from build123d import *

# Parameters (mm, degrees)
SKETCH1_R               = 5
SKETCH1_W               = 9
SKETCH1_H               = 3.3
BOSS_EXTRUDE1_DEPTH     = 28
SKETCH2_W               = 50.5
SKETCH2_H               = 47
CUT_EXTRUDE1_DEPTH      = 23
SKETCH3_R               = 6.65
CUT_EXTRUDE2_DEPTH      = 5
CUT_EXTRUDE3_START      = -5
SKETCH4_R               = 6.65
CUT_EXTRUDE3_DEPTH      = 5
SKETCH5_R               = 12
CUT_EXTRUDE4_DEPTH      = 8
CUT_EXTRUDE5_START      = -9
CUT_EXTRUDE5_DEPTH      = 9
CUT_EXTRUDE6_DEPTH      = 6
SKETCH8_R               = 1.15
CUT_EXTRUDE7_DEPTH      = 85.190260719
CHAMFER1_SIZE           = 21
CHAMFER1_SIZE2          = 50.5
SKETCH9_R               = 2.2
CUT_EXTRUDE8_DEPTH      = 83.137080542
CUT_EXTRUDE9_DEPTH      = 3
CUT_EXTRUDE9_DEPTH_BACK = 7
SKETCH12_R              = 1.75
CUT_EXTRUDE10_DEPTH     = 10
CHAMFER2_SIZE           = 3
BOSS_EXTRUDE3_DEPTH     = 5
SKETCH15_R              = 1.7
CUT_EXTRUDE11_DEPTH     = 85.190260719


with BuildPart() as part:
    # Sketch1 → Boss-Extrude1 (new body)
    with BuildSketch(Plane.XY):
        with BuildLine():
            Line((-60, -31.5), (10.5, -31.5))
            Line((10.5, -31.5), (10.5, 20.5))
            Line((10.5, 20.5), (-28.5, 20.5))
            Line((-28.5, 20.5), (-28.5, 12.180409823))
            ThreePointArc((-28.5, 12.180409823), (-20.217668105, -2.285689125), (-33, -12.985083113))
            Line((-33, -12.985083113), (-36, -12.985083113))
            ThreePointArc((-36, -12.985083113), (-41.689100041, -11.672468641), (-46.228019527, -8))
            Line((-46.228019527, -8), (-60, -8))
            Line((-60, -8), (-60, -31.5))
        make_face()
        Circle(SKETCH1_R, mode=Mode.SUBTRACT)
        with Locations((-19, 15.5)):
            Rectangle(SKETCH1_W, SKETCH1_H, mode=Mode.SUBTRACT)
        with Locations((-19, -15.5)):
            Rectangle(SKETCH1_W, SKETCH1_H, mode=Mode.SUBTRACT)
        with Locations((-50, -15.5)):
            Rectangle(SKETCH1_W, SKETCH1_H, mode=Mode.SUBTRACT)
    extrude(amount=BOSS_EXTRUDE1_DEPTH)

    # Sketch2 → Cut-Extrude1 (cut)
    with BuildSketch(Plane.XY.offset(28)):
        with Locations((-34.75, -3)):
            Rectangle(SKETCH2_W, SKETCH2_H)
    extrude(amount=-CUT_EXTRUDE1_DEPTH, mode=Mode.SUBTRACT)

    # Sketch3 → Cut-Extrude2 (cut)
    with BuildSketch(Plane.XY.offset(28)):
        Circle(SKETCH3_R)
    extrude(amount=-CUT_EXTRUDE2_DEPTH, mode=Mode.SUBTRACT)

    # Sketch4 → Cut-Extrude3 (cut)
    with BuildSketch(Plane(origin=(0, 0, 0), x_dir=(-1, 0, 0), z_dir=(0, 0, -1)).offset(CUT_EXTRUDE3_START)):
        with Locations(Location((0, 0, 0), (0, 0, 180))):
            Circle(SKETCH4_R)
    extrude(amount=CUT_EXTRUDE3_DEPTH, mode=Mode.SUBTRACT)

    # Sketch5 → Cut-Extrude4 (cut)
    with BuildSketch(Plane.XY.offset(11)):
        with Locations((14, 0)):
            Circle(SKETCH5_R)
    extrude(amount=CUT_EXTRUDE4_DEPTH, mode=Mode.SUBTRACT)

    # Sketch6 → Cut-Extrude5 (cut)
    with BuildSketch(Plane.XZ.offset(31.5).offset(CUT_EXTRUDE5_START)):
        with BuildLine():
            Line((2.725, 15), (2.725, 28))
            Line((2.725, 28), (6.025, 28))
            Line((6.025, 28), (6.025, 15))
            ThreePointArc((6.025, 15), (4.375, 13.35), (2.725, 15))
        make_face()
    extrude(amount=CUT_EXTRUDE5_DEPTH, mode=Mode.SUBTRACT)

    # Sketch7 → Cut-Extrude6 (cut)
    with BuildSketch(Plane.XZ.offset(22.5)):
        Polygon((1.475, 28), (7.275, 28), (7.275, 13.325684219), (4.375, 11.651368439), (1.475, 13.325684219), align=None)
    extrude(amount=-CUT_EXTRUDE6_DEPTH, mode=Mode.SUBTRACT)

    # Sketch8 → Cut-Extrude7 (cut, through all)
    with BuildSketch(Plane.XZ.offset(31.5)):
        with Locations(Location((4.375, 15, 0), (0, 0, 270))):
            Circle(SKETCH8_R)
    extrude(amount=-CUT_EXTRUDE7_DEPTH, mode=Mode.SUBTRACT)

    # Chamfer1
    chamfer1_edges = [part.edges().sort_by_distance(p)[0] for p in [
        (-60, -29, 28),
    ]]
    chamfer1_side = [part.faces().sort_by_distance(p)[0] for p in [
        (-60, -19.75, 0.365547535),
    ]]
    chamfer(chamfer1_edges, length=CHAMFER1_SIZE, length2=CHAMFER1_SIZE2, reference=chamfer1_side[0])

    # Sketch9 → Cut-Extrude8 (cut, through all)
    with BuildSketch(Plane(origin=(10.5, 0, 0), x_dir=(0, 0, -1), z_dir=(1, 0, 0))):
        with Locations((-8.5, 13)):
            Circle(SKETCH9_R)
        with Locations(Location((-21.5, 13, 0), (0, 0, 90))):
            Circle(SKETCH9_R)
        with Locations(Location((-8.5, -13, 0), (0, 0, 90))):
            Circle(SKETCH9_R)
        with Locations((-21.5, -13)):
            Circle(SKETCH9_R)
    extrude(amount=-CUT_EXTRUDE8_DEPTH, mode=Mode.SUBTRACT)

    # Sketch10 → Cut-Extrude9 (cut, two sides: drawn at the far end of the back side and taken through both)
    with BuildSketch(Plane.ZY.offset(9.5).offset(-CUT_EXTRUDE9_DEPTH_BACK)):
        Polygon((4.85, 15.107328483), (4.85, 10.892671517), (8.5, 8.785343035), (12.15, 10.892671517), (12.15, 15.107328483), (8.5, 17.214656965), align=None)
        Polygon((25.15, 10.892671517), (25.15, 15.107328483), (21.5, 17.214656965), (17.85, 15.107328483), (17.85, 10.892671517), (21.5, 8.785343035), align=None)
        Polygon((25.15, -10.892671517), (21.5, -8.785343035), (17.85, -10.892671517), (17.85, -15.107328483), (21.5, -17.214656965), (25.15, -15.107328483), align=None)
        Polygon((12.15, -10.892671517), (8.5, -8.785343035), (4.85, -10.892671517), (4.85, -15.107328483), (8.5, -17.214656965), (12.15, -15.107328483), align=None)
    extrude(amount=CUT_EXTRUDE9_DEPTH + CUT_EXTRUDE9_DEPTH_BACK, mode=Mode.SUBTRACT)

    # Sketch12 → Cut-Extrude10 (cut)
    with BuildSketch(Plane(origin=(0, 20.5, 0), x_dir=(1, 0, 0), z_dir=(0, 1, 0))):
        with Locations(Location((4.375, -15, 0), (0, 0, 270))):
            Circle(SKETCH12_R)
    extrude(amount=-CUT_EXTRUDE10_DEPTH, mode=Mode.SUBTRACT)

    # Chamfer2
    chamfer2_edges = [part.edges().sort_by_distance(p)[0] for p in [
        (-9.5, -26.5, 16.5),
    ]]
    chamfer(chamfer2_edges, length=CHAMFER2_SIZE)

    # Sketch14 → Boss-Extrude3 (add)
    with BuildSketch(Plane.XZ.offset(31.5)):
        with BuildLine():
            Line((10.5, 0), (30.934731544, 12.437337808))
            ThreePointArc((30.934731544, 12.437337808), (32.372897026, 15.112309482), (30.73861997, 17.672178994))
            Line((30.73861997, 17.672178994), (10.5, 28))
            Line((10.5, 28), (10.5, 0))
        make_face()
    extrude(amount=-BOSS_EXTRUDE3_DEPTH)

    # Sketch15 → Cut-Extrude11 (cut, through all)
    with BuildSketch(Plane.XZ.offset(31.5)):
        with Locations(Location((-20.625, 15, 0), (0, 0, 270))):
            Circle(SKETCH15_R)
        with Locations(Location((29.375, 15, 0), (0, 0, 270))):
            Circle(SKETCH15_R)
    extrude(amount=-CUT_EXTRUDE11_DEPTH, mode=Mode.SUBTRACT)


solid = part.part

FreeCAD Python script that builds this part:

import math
import FreeCAD as App
import Part
import Sketcher
from FreeCAD import Vector
Q = App.Units.Quantity


def edges_at(feature, points):
    """Names of the edges that pass closest to the given points."""
    edges = feature.Shape.Edges
    near = lambda p: min(range(len(edges)), key=lambda i: edges[i].distToShape(Part.Vertex(*p))[0])
    return sorted({f"Edge{near(p) + 1}" for p in points})

doc = App.newDocument("Part")
body = doc.addObject("PartDesign::Body", "Body")

# Sketch on XY plane
sketch1 = doc.addObject("Sketcher::SketchObject", "Sketch")
body.addObject(sketch1)
sketch1.AttachmentSupport = (doc.XY_Plane, [""])
sketch1.MapMode = "FlatFace"
sketch1.addGeometry([
    Part.LineSegment(Vector(-60, -31.5, 0), Vector(10.5, -31.5, 0)),  # 0
    Part.LineSegment(Vector(10.5, -31.5, 0), Vector(10.5, 20.5, 0)),  # 1
    Part.LineSegment(Vector(10.5, 20.5, 0), Vector(-28.5, 20.5, 0)),  # 2
    Part.LineSegment(Vector(-28.5, 20.5, 0), Vector(-28.5, 12.18041, 0)),  # 3
    Part.ArcOfCircle(Part.Circle(Vector(-33, 0, 0), Vector(0, 0, 1), 12.985083), math.radians(-90), math.radians(69.723466)),  # 4
    Part.LineSegment(Vector(-33, -12.985083, 0), Vector(-36, -12.985083, 0)),  # 5
    Part.ArcOfCircle(Part.Circle(Vector(-36, 0, 0), Vector(0, 0, 1), 12.985083), math.radians(-141.968723), math.radians(-90)),  # 6
    Part.LineSegment(Vector(-46.22802, -8, 0), Vector(-60, -8, 0)),  # 7
    Part.LineSegment(Vector(-60, -8, 0), Vector(-60, -31.5, 0)),  # 8
    Part.LineSegment(Vector(-45.5, -17.15, 0), Vector(-54.5, -17.15, 0)),  # 9
    Part.LineSegment(Vector(-54.5, -17.15, 0), Vector(-54.5, -13.85, 0)),  # 10
    Part.LineSegment(Vector(-54.5, -13.85, 0), Vector(-45.5, -13.85, 0)),  # 11
    Part.LineSegment(Vector(-45.5, -13.85, 0), Vector(-45.5, -17.15, 0)),  # 12
    Part.LineSegment(Vector(-14.5, -17.15, 0), Vector(-23.5, -17.15, 0)),  # 13
    Part.LineSegment(Vector(-23.5, -17.15, 0), Vector(-23.5, -13.85, 0)),  # 14
    Part.LineSegment(Vector(-23.5, -13.85, 0), Vector(-14.5, -13.85, 0)),  # 15
    Part.LineSegment(Vector(-14.5, -13.85, 0), Vector(-14.5, -17.15, 0)),  # 16
    Part.Circle(Vector(0, 0, 0), Vector(0, 0, 1), 5),  # 17
    Part.LineSegment(Vector(-14.5, 13.85, 0), Vector(-23.5, 13.85, 0)),  # 18
    Part.LineSegment(Vector(-23.5, 13.85, 0), Vector(-23.5, 17.15, 0)),  # 19
    Part.LineSegment(Vector(-23.5, 17.15, 0), Vector(-14.5, 17.15, 0)),  # 20
    Part.LineSegment(Vector(-14.5, 17.15, 0), Vector(-14.5, 13.85, 0)),  # 21
], False)
sketch1.addConstraint([
    Sketcher.Constraint("Coincident", 0, 2, 1, 1),
    Sketcher.Constraint("Coincident", 1, 2, 2, 1),
    Sketcher.Constraint("Coincident", 2, 2, 3, 1),
    Sketcher.Constraint("Coincident", 3, 2, 4, 2),
    Sketcher.Constraint("Tangent", 4, 1, 5, 1),
    Sketcher.Constraint("Tangent", 5, 2, 6, 2),
    Sketcher.Constraint("Coincident", 6, 1, 7, 1),
    Sketcher.Constraint("Coincident", 7, 2, 8, 1),
    Sketcher.Constraint("Coincident", 8, 2, 0, 1),
    Sketcher.Constraint("Coincident", 9, 2, 10, 1),
    Sketcher.Constraint("Coincident", 10, 2, 11, 1),
    Sketcher.Constraint("Coincident", 11, 2, 12, 1),
    Sketcher.Constraint("Coincident", 12, 2, 9, 1),
    Sketcher.Constraint("Coincident", 13, 2, 14, 1),
    Sketcher.Constraint("Coincident", 14, 2, 15, 1),
    Sketcher.Constraint("Coincident", 15, 2, 16, 1),
    Sketcher.Constraint("Coincident", 16, 2, 13, 1),
    Sketcher.Constraint("Coincident", 18, 2, 19, 1),
    Sketcher.Constraint("Coincident", 19, 2, 20, 1),
    Sketcher.Constraint("Coincident", 20, 2, 21, 1),
    Sketcher.Constraint("Coincident", 21, 2, 18, 1),
    Sketcher.Constraint("Horizontal", 0),
    Sketcher.Constraint("Vertical", 1),
    Sketcher.Constraint("Horizontal", 2),
    Sketcher.Constraint("Vertical", 3),
    Sketcher.Constraint("Horizontal", 5),
    Sketcher.Constraint("Horizontal", 7),
    Sketcher.Constraint("Vertical", 8),
    Sketcher.Constraint("Horizontal", 9),
    Sketcher.Constraint("Vertical", 10),
    Sketcher.Constraint("Horizontal", 11),
    Sketcher.Constraint("Vertical", 12),
    Sketcher.Constraint("Horizontal", 13),
    Sketcher.Constraint("Vertical", 14),
    Sketcher.Constraint("Horizontal", 15),
    Sketcher.Constraint("Vertical", 16),
    Sketcher.Constraint("Horizontal", 18),
    Sketcher.Constraint("Vertical", 19),
    Sketcher.Constraint("Horizontal", 20),
    Sketcher.Constraint("Vertical", 21),
    Sketcher.Constraint("Coincident", 17, 3, -1, 1),
    Sketcher.Constraint("Equal", 4, 6),
    Sketcher.Constraint("Symmetric", 14, 2, 18, 2, -1),
    Sketcher.Constraint("Symmetric", 16, 2, 20, 2, -1),
    Sketcher.Constraint("PointOnObject", 4, 3, -1),
    Sketcher.Constraint("Horizontal", 12, 2, 13, 2),
    Sketcher.Constraint("Horizontal", 11, 2, 14, 2),
    Sketcher.Constraint("Equal", 11, 13),
    Sketcher.Constraint("Diameter", 17, Q("10 mm")),
    Sketcher.Constraint("DistanceX", 2, 2, 2, 1, Q("39 mm")),
    Sketcher.Constraint("DistanceX", 5, 2, 5, 1, Q("3 mm")),
    Sketcher.Constraint("DistanceX", 9, 2, 9, 1, Q("9 mm")),
    Sketcher.Constraint("DistanceY", 1, 1, 1, 2, Q("52 mm")),
    Sketcher.Constraint("DistanceX", 0, 1, 0, 2, Q("70.5 mm")),
    Sketcher.Constraint("DistanceY", 8, 2, 8, 1, Q("23.5 mm")),
    Sketcher.Constraint("DistanceY", 10, 1, 10, 2, Q("3.3 mm")),
    Sketcher.Constraint("DistanceX", 4, 3, -1, 1, Q("33 mm")),
    Sketcher.Constraint("DistanceY", 6, 1, -1, 1, Q("8 mm")),
    Sketcher.Constraint("DistanceX", 7, 2, -1, 1, Q("60 mm")),
    Sketcher.Constraint("DistanceX", 12, 2, 13, 2, Q("22 mm")),
    Sketcher.Constraint("DistanceX", 3, 2, 18, 2, Q("5 mm")),
    Sketcher.Constraint("DistanceY", 9, 2, -1, 1, Q("17.15 mm")),
    Sketcher.Constraint("Radius", 4, Q("12.985083 mm")),
])
pad1 = doc.addObject("PartDesign::Pad", "Pad")
body.addObject(pad1)
pad1.Profile = sketch1
pad1.Length = 28

# Sketch on XY plane
sketch2 = doc.addObject("Sketcher::SketchObject", "Sketch001")
body.addObject(sketch2)
sketch2.AttachmentSupport = (doc.XY_Plane, [""])
sketch2.MapMode = "FlatFace"
sketch2.AttachmentOffset = App.Placement(Vector(0, 0, 28), App.Rotation())
sketch2.addGeometry([
    Part.LineSegment(Vector(-60, 20.5, 0), Vector(-60, -26.5, 0)),
    Part.LineSegment(Vector(-60, -26.5, 0), Vector(-9.5, -26.5, 0)),
    Part.LineSegment(Vector(-9.5, -26.5, 0), Vector(-9.5, 20.5, 0)),
    Part.LineSegment(Vector(-9.5, 20.5, 0), Vector(-60, 20.5, 0)),
], False)
sketch2.addConstraint([
    Sketcher.Constraint("Coincident", 0, 2, 1, 1),
    Sketcher.Constraint("Coincident", 1, 2, 2, 1),
    Sketcher.Constraint("Coincident", 2, 2, 3, 1),
    Sketcher.Constraint("Coincident", 3, 2, 0, 1),
    Sketcher.Constraint("Vertical", 0),
    Sketcher.Constraint("Horizontal", 1),
    Sketcher.Constraint("Vertical", 2),
    Sketcher.Constraint("Horizontal", 3),
    Sketcher.Constraint("DistanceY", 0, 2, 0, 1, Q("47 mm")),
    Sketcher.Constraint("DistanceX", 1, 1, 1, 2, Q("50.5 mm")),
    Sketcher.Constraint("DistanceX", 0, 2, -1, 1, Q("60 mm")),
    Sketcher.Constraint("DistanceY", 0, 2, -1, 1, Q("26.5 mm")),
])
pocket1 = doc.addObject("PartDesign::Pocket", "Pocket")
body.addObject(pocket1)
pocket1.Profile = sketch2
pocket1.Length = 23

# Sketch on XY plane
sketch3 = doc.addObject("Sketcher::SketchObject", "Sketch002")
body.addObject(sketch3)
sketch3.AttachmentSupport = (doc.XY_Plane, [""])
sketch3.MapMode = "FlatFace"
sketch3.AttachmentOffset = App.Placement(Vector(0, 0, 28), App.Rotation())
sketch3.addGeometry(Part.Circle(Vector(0, 0, 0), Vector(0, 0, 1), 6.65), False)
sketch3.addConstraint([
    Sketcher.Constraint("Coincident", 0, 3, -1, 1),
    Sketcher.Constraint("Diameter", 0, Q("13.3 mm")),
])
pocket2 = doc.addObject("PartDesign::Pocket", "Pocket001")
body.addObject(pocket2)
pocket2.Profile = sketch3
pocket2.Length = 5

# Sketch on XY plane
sketch4 = doc.addObject("Sketcher::SketchObject", "Sketch003")
body.addObject(sketch4)
sketch4.AttachmentSupport = (doc.XY_Plane, [""])
sketch4.MapMode = "FlatFace"
sketch4.AttachmentOffset = App.Placement(Vector(0, 0, 5), App.Rotation())
sketch4.addGeometry(Part.Circle(Vector(0, 0, 0), Vector(0, 0, 1), 6.65), False)
sketch4.addConstraint([
    Sketcher.Constraint("Coincident", 0, 3, -1, 1),
    Sketcher.Constraint("Diameter", 0, Q("13.3 mm")),
])
pocket3 = doc.addObject("PartDesign::Pocket", "Pocket002")
body.addObject(pocket3)
pocket3.Profile = sketch4
pocket3.Length = 5

# Sketch on XY plane
sketch5 = doc.addObject("Sketcher::SketchObject", "Sketch004")
body.addObject(sketch5)
sketch5.AttachmentSupport = (doc.XY_Plane, [""])
sketch5.MapMode = "FlatFace"
sketch5.AttachmentOffset = App.Placement(Vector(0, 0, 11), App.Rotation())
sketch5.addGeometry(Part.Circle(Vector(14, 0, 0), Vector(0, 0, 1), 12), False)
sketch5.addConstraint([
    Sketcher.Constraint("PointOnObject", 0, 3, -1),
    Sketcher.Constraint("Diameter", 0, Q("24 mm")),
    Sketcher.Constraint("DistanceX", -1, 1, 0, 3, Q("14 mm")),
])
pocket4 = doc.addObject("PartDesign::Pocket", "Pocket003")
body.addObject(pocket4)
pocket4.Profile = sketch5
pocket4.Length = 8
pocket4.Reversed = True

# Sketch on XZ plane
sketch6 = doc.addObject("Sketcher::SketchObject", "Sketch005")
body.addObject(sketch6)
sketch6.AttachmentSupport = (doc.XZ_Plane, [""])
sketch6.MapMode = "FlatFace"
sketch6.AttachmentOffset = App.Placement(Vector(0, 0, 22.5), App.Rotation())
sketch6.addGeometry([
    Part.LineSegment(Vector(2.725, 28, 0), Vector(2.725, 15, 0)),
    Part.ArcOfCircle(Part.Circle(Vector(4.375, 15, 0), Vector(0, 0, 1), 1.65), math.radians(180), math.radians(360)),
    Part.LineSegment(Vector(6.025, 15, 0), Vector(6.025, 28, 0)),
    Part.LineSegment(Vector(6.025, 28, 0), Vector(2.725, 28, 0)),
], False)
sketch6.addConstraint([
    Sketcher.Constraint("Tangent", 0, 2, 1, 1),
    Sketcher.Constraint("Tangent", 1, 2, 2, 1),
    Sketcher.Constraint("Coincident", 2, 2, 3, 1),
    Sketcher.Constraint("Coincident", 3, 2, 0, 1),
    Sketcher.Constraint("Vertical", 0),
    Sketcher.Constraint("Vertical", 2),
    Sketcher.Constraint("Horizontal", 3),
    Sketcher.Constraint("DistanceY", 0, 2, 0, 1, Q("13 mm")),
    Sketcher.Constraint("Radius", 1, Q("1.65 mm")),
    Sketcher.Constraint("DistanceY", -1, 1, 1, 3, Q("15 mm")),
    Sketcher.Constraint("DistanceX", -1, 1, 1, 3, Q("4.375 mm")),
])
pocket5 = doc.addObject("PartDesign::Pocket", "Pocket004")
body.addObject(pocket5)
pocket5.Profile = sketch6
pocket5.Length = 9
pocket5.Reversed = True

# Sketch on XZ plane
sketch7 = doc.addObject("Sketcher::SketchObject", "Sketch006")
body.addObject(sketch7)
sketch7.AttachmentSupport = (doc.XZ_Plane, [""])
sketch7.MapMode = "FlatFace"
sketch7.AttachmentOffset = App.Placement(Vector(0, 0, 22.5), App.Rotation())
sketch7.addGeometry([
    Part.LineSegment(Vector(7.275, 28, 0), Vector(1.475, 28, 0)),  # 0
    Part.LineSegment(Vector(1.475, 28, 0), Vector(1.475, 13.325684, 0)),  # 1
    Part.LineSegment(Vector(1.475, 13.325684, 0), Vector(4.375, 11.651368, 0)),  # 2
    Part.LineSegment(Vector(4.375, 11.651368, 0), Vector(7.275, 13.325684, 0)),  # 3
    Part.LineSegment(Vector(7.275, 13.325684, 0), Vector(7.275, 28, 0)),  # 4
], False)
sketch7.addConstraint([
    Sketcher.Constraint("Coincident", 0, 2, 1, 1),
    Sketcher.Constraint("Coincident", 1, 2, 2, 1),
    Sketcher.Constraint("Coincident", 2, 2, 3, 1),
    Sketcher.Constraint("Coincident", 3, 2, 4, 1),
    Sketcher.Constraint("Coincident", 4, 2, 0, 1),
    Sketcher.Constraint("Horizontal", 0),
    Sketcher.Constraint("Vertical", 1),
    Sketcher.Constraint("Vertical", 4),
    Sketcher.Constraint("Horizontal", 1, 2, 3, 2),
    Sketcher.Constraint("Equal", 2, 3),
    Sketcher.Constraint("Angle", 2, Q("-30 deg")),
    Sketcher.Constraint("DistanceX", 0, 2, 0, 1, Q("5.8 mm")),
    Sketcher.Constraint("DistanceY", -1, 1, 0, 2, Q("28 mm")),
    Sketcher.Constraint("DistanceX", -1, 1, 0, 2, Q("1.475 mm")),
    Sketcher.Constraint("DistanceY", 1, 2, 1, 1, Q("14.674316 mm")),
])
pocket6 = doc.addObject("PartDesign::Pocket", "Pocket005")
body.addObject(pocket6)
pocket6.Profile = sketch7
pocket6.Length = 6

# Sketch on XZ plane
sketch8 = doc.addObject("Sketcher::SketchObject", "Sketch007")
body.addObject(sketch8)
sketch8.AttachmentSupport = (doc.XZ_Plane, [""])
sketch8.MapMode = "FlatFace"
sketch8.AttachmentOffset = App.Placement(Vector(0, 0, 31.5), App.Rotation())
sketch8.addGeometry(Part.Circle(Vector(4.375, 15, 0), Vector(0, 0, 1), 1.15), False)
sketch8.addConstraint([
    Sketcher.Constraint("Diameter", 0, Q("2.3 mm")),
    Sketcher.Constraint("DistanceY", -1, 1, 0, 3, Q("15 mm")),
    Sketcher.Constraint("DistanceX", -1, 1, 0, 3, Q("4.375 mm")),
])
pocket7 = doc.addObject("PartDesign::Pocket", "Pocket006")
body.addObject(pocket7)
pocket7.Profile = sketch8
pocket7.Type = "ThroughAll"
doc.recompute()

chamfer = doc.addObject("PartDesign::Chamfer", "Chamfer")
body.addObject(chamfer)
chamfer.Base = (pocket7, edges_at(pocket7, [(-60, -29, 28)]))
chamfer.ChamferType = "Two distances"
chamfer.Size = 21
chamfer.Size2 = 50.5
chamfer.FlipDirection = True

# Sketch on YZ plane
sketch9 = doc.addObject("Sketcher::SketchObject", "Sketch008")
body.addObject(sketch9)
sketch9.AttachmentSupport = (doc.YZ_Plane, [""])
sketch9.MapMode = "FlatFace"
sketch9.AttachmentOffset = App.Placement(Vector(0, 0, 10.5), App.Rotation())
sketch9.addGeometry([
    Part.Circle(Vector(13, 8.5, 0), Vector(0, 0, 1), 2.2),
    Part.Circle(Vector(13, 21.5, 0), Vector(0, 0, 1), 2.2),
    Part.Circle(Vector(-13, 8.5, 0), Vector(0, 0, 1), 2.2),
    Part.Circle(Vector(-13, 21.5, 0), Vector(0, 0, 1), 2.2),
], False)
sketch9.addConstraint([
    Sketcher.Constraint("Equal", 0, 1),
    Sketcher.Constraint("Equal", 1, 2),
    Sketcher.Constraint("Equal", 2, 3),
    Sketcher.Constraint("Symmetric", 0, 3, 2, 3, -2),
    Sketcher.Constraint("Symmetric", 1, 3, 3, 3, -2),
    Sketcher.Constraint("Vertical", 0, 3, 1, 3),
    Sketcher.Constraint("Diameter", 0, Q("4.4 mm")),
    Sketcher.Constraint("DistanceX", -1, 1, 0, 3, Q("13 mm")),
    Sketcher.Constraint("DistanceY", 0, 3, 1, 3, Q("13 mm")),
    Sketcher.Constraint("DistanceY", -1, 1, 0, 3, Q("8.5 mm")),
])
pocket8 = doc.addObject("PartDesign::Pocket", "Pocket007")
body.addObject(pocket8)
pocket8.Profile = sketch9
pocket8.Type = "ThroughAll"

# Sketch on YZ plane
sketch10 = doc.addObject("Sketcher::SketchObject", "Sketch009")
body.addObject(sketch10)
sketch10.AttachmentSupport = (doc.YZ_Plane, [""])
sketch10.MapMode = "FlatFace"
sketch10.AttachmentOffset = App.Placement(Vector(0, 0, -9.5), App.Rotation())
sketch10.addGeometry([
    Part.LineSegment(Vector(15.107328, 4.85, 0), Vector(10.892672, 4.85, 0)),  # 0
    Part.LineSegment(Vector(10.892672, 4.85, 0), Vector(8.785343, 8.5, 0)),  # 1
    Part.LineSegment(Vector(8.785343, 8.5, 0), Vector(10.892672, 12.15, 0)),  # 2
    Part.LineSegment(Vector(10.892672, 12.15, 0), Vector(15.107328, 12.15, 0)),  # 3
    Part.LineSegment(Vector(15.107328, 12.15, 0), Vector(17.214657, 8.5, 0)),  # 4
    Part.LineSegment(Vector(17.214657, 8.5, 0), Vector(15.107328, 4.85, 0)),  # 5
    Part.LineSegment(Vector(10.892672, 25.15, 0), Vector(15.107328, 25.15, 0)),  # 6
    Part.LineSegment(Vector(15.107328, 25.15, 0), Vector(17.214657, 21.5, 0)),  # 7
    Part.LineSegment(Vector(17.214657, 21.5, 0), Vector(15.107328, 17.85, 0)),  # 8
    Part.LineSegment(Vector(15.107328, 17.85, 0), Vector(10.892672, 17.85, 0)),  # 9
    Part.LineSegment(Vector(10.892672, 17.85, 0), Vector(8.785343, 21.5, 0)),  # 10
    Part.LineSegment(Vector(8.785343, 21.5, 0), Vector(10.892672, 25.15, 0)),  # 11
    Part.LineSegment(Vector(-10.892672, 25.15, 0), Vector(-8.785343, 21.5, 0)),  # 12
    Part.LineSegment(Vector(-8.785343, 21.5, 0), Vector(-10.892672, 17.85, 0)),  # 13
    Part.LineSegment(Vector(-10.892672, 17.85, 0), Vector(-15.107328, 17.85, 0)),  # 14
    Part.LineSegment(Vector(-15.107328, 17.85, 0), Vector(-17.214657, 21.5, 0)),  # 15
    Part.LineSegment(Vector(-17.214657, 21.5, 0), Vector(-15.107328, 25.15, 0)),  # 16
    Part.LineSegment(Vector(-15.107328, 25.15, 0), Vector(-10.892672, 25.15, 0)),  # 17
    Part.LineSegment(Vector(-10.892672, 12.15, 0), Vector(-8.785343, 8.5, 0)),  # 18
    Part.LineSegment(Vector(-8.785343, 8.5, 0), Vector(-10.892672, 4.85, 0)),  # 19
    Part.LineSegment(Vector(-10.892672, 4.85, 0), Vector(-15.107328, 4.85, 0)),  # 20
    Part.LineSegment(Vector(-15.107328, 4.85, 0), Vector(-17.214657, 8.5, 0)),  # 21
    Part.LineSegment(Vector(-17.214657, 8.5, 0), Vector(-15.107328, 12.15, 0)),  # 22
    Part.LineSegment(Vector(-15.107328, 12.15, 0), Vector(-10.892672, 12.15, 0)),  # 23
], False)
sketch10.addConstraint([
    Sketcher.Constraint("Coincident", 0, 2, 1, 1),
    Sketcher.Constraint("Coincident", 1, 2, 2, 1),
    Sketcher.Constraint("Coincident", 2, 2, 3, 1),
    Sketcher.Constraint("Coincident", 3, 2, 4, 1),
    Sketcher.Constraint("Coincident", 4, 2, 5, 1),
    Sketcher.Constraint("Coincident", 5, 2, 0, 1),
    Sketcher.Constraint("Coincident", 6, 2, 7, 1),
    Sketcher.Constraint("Coincident", 7, 2, 8, 1),
    Sketcher.Constraint("Coincident", 8, 2, 9, 1),
    Sketcher.Constraint("Coincident", 9, 2, 10, 1),
    Sketcher.Constraint("Coincident", 10, 2, 11, 1),
    Sketcher.Constraint("Coincident", 11, 2, 6, 1),
    Sketcher.Constraint("Coincident", 12, 2, 13, 1),
    Sketcher.Constraint("Coincident", 13, 2, 14, 1),
    Sketcher.Constraint("Coincident", 14, 2, 15, 1),
    Sketcher.Constraint("Coincident", 15, 2, 16, 1),
    Sketcher.Constraint("Coincident", 16, 2, 17, 1),
    Sketcher.Constraint("Coincident", 17, 2, 12, 1),
    Sketcher.Constraint("Coincident", 18, 2, 19, 1),
    Sketcher.Constraint("Coincident", 19, 2, 20, 1),
    Sketcher.Constraint("Coincident", 20, 2, 21, 1),
    Sketcher.Constraint("Coincident", 21, 2, 22, 1),
    Sketcher.Constraint("Coincident", 22, 2, 23, 1),
    Sketcher.Constraint("Coincident", 23, 2, 18, 1),
    Sketcher.Constraint("Horizontal", 0),
    Sketcher.Constraint("Horizontal", 3),
    Sketcher.Constraint("Horizontal", 6),
    Sketcher.Constraint("Horizontal", 9),
    Sketcher.Constraint("Horizontal", 14),
    Sketcher.Constraint("Horizontal", 17),
    Sketcher.Constraint("Horizontal", 20),
    Sketcher.Constraint("Horizontal", 23),
    Sketcher.Constraint("Symmetric", 10, 2, 12, 2, -2),
    Sketcher.Constraint("Symmetric", 9, 2, 13, 2, -2),
    Sketcher.Constraint("Symmetric", 7, 2, 15, 2, -2),
    Sketcher.Constraint("Symmetric", 6, 2, 16, 2, -2),
    Sketcher.Constraint("Symmetric", 1, 2, 18, 2, -2),
    Sketcher.Constraint("Symmetric", 0, 2, 19, 2, -2),
    Sketcher.Constraint("Symmetric", 4, 2, 21, 2, -2),
    Sketcher.Constraint("Symmetric", 3, 2, 22, 2, -2),
    Sketcher.Constraint("Parallel", 1, 4),
    Sketcher.Constraint("Parallel", 2, 5),
    Sketcher.Constraint("Parallel", 4, 7),
    Sketcher.Constraint("Parallel", 5, 8),
    Sketcher.Constraint("Parallel", 7, 10),
    Sketcher.Constraint("Parallel", 8, 11),
    Sketcher.Constraint("Parallel", 10, 12),
    Sketcher.Constraint("Parallel", 11, 13),
    Sketcher.Constraint("Parallel", 12, 15),
    Sketcher.Constraint("Parallel", 15, 18),
    Sketcher.Constraint("Parallel", 18, 21),
    Sketcher.Constraint("Horizontal", 1, 2, 4, 2),
    Sketcher.Constraint("Horizontal", 7, 2, 10, 2),
    Sketcher.Constraint("Vertical", 0, 2, 2, 2),
    Sketcher.Constraint("Vertical", 5, 2, 6, 2),
    Sketcher.Constraint("Vertical", 4, 2, 7, 2),
    Sketcher.Constraint("Vertical", 6, 2, 8, 2),
    Sketcher.Constraint("Vertical", 2, 2, 9, 2),
    Sketcher.Constraint("Angle", 1, Q("120 deg")),
    Sketcher.Constraint("DistanceY", 3, 2, 6, 2, Q("13 mm")),
    Sketcher.Constraint("DistanceX", 14, 2, 9, 2, Q("26 mm")),
    Sketcher.Constraint("DistanceY", -1, 1, 1, 2, Q("8.5 mm")),
    Sketcher.Constraint("DistanceY", 0, 2, 2, 2, Q("7.3 mm")),
    Sketcher.Constraint("DistanceX", 0, 2, 0, 1, Q("4.214657 mm")),
])
pocket9 = doc.addObject("PartDesign::Pocket", "Pocket008")
body.addObject(pocket9)
pocket9.Profile = sketch10
pocket9.Type = "TwoLengths"
pocket9.Length = 3
pocket9.Length2 = 7

# Sketch on XZ plane
sketch11 = doc.addObject("Sketcher::SketchObject", "Sketch010")
body.addObject(sketch11)
sketch11.AttachmentSupport = (doc.XZ_Plane, [""])
sketch11.MapMode = "FlatFace"
sketch11.AttachmentOffset = App.Placement(Vector(0, 0, -20.5), App.Rotation())
sketch11.addGeometry(Part.Circle(Vector(4.375, 15, 0), Vector(0, 0, 1), 1.75), False)
sketch11.addConstraint([
    Sketcher.Constraint("Diameter", 0, Q("3.5 mm")),
    Sketcher.Constraint("DistanceY", -1, 1, 0, 3, Q("15 mm")),
    Sketcher.Constraint("DistanceX", -1, 1, 0, 3, Q("4.375 mm")),
])
pocket10 = doc.addObject("PartDesign::Pocket", "Pocket009")
body.addObject(pocket10)
pocket10.Profile = sketch11
pocket10.Length = 10
pocket10.Reversed = True
doc.recompute()

chamfer2 = doc.addObject("PartDesign::Chamfer", "Chamfer001")
body.addObject(chamfer2)
chamfer2.Base = (pocket10, edges_at(pocket10, [(-9.5, -26.5, 16.5)]))
chamfer2.Size = 3

# Sketch on XZ plane
sketch12 = doc.addObject("Sketcher::SketchObject", "Sketch011")
body.addObject(sketch12)
sketch12.AttachmentSupport = (doc.XZ_Plane, [""])
sketch12.MapMode = "FlatFace"
sketch12.AttachmentOffset = App.Placement(Vector(0, 0, 31.5), App.Rotation())
sketch12.addGeometry([
    Part.LineSegment(Vector(10.5, 0, 0), Vector(30.934732, 12.437338, 0)),
    Part.ArcOfCircle(Part.Circle(Vector(29.375, 15, 0), Vector(0, 0, 1), 3), math.radians(-58.673751), math.radians(62.96466)),
    Part.LineSegment(Vector(30.73862, 17.672179, 0), Vector(10.5, 28, 0)),
    Part.LineSegment(Vector(10.5, 28, 0), Vector(10.5, 0, 0)),
], False)
sketch12.addConstraint([
    Sketcher.Constraint("Tangent", 0, 2, 1, 1),
    Sketcher.Constraint("Tangent", 1, 2, 2, 1),
    Sketcher.Constraint("Coincident", 2, 2, 3, 1),
    Sketcher.Constraint("Coincident", 3, 2, 0, 1),
    Sketcher.Constraint("Vertical", 3),
    Sketcher.Constraint("PointOnObject", 3, 2, -1),
    Sketcher.Constraint("Radius", 1, Q("3 mm")),
    Sketcher.Constraint("DistanceY", 3, 2, 3, 1, Q("28 mm")),
    Sketcher.Constraint("DistanceY", -1, 1, 1, 3, Q("15 mm")),
    Sketcher.Constraint("DistanceX", -1, 1, 2, 2, Q("10.5 mm")),
    Sketcher.Constraint("DistanceX", -1, 1, 1, 3, Q("29.375 mm")),
])
pad2 = doc.addObject("PartDesign::Pad", "Pad001")
body.addObject(pad2)
pad2.Profile = sketch12
pad2.Length = 5
pad2.Reversed = True

# Sketch on XZ plane
sketch13 = doc.addObject("Sketcher::SketchObject", "Sketch012")
body.addObject(sketch13)
sketch13.AttachmentSupport = (doc.XZ_Plane, [""])
sketch13.MapMode = "FlatFace"
sketch13.AttachmentOffset = App.Placement(Vector(0, 0, 31.5), App.Rotation())
sketch13.addGeometry([
    Part.Circle(Vector(-20.625, 15, 0), Vector(0, 0, 1), 1.7),
    Part.Circle(Vector(29.375, 15, 0), Vector(0, 0, 1), 1.7),
], False)
sketch13.addConstraint([
    Sketcher.Constraint("Equal", 0, 1),
    Sketcher.Constraint("Horizontal", 0, 3, 1, 3),
    Sketcher.Constraint("Diameter", 0, Q("3.4 mm")),
    Sketcher.Constraint("DistanceY", -1, 1, 0, 3, Q("15 mm")),
    Sketcher.Constraint("DistanceX", 0, 3, 1, 3, Q("50 mm")),
    Sketcher.Constraint("DistanceX", 0, 3, -1, 1, Q("20.625 mm")),
])
pocket11 = doc.addObject("PartDesign::Pocket", "Pocket010")
body.addObject(pocket11)
pocket11.Profile = sketch13
pocket11.Type = "ThroughAll"

doc.recompute()
